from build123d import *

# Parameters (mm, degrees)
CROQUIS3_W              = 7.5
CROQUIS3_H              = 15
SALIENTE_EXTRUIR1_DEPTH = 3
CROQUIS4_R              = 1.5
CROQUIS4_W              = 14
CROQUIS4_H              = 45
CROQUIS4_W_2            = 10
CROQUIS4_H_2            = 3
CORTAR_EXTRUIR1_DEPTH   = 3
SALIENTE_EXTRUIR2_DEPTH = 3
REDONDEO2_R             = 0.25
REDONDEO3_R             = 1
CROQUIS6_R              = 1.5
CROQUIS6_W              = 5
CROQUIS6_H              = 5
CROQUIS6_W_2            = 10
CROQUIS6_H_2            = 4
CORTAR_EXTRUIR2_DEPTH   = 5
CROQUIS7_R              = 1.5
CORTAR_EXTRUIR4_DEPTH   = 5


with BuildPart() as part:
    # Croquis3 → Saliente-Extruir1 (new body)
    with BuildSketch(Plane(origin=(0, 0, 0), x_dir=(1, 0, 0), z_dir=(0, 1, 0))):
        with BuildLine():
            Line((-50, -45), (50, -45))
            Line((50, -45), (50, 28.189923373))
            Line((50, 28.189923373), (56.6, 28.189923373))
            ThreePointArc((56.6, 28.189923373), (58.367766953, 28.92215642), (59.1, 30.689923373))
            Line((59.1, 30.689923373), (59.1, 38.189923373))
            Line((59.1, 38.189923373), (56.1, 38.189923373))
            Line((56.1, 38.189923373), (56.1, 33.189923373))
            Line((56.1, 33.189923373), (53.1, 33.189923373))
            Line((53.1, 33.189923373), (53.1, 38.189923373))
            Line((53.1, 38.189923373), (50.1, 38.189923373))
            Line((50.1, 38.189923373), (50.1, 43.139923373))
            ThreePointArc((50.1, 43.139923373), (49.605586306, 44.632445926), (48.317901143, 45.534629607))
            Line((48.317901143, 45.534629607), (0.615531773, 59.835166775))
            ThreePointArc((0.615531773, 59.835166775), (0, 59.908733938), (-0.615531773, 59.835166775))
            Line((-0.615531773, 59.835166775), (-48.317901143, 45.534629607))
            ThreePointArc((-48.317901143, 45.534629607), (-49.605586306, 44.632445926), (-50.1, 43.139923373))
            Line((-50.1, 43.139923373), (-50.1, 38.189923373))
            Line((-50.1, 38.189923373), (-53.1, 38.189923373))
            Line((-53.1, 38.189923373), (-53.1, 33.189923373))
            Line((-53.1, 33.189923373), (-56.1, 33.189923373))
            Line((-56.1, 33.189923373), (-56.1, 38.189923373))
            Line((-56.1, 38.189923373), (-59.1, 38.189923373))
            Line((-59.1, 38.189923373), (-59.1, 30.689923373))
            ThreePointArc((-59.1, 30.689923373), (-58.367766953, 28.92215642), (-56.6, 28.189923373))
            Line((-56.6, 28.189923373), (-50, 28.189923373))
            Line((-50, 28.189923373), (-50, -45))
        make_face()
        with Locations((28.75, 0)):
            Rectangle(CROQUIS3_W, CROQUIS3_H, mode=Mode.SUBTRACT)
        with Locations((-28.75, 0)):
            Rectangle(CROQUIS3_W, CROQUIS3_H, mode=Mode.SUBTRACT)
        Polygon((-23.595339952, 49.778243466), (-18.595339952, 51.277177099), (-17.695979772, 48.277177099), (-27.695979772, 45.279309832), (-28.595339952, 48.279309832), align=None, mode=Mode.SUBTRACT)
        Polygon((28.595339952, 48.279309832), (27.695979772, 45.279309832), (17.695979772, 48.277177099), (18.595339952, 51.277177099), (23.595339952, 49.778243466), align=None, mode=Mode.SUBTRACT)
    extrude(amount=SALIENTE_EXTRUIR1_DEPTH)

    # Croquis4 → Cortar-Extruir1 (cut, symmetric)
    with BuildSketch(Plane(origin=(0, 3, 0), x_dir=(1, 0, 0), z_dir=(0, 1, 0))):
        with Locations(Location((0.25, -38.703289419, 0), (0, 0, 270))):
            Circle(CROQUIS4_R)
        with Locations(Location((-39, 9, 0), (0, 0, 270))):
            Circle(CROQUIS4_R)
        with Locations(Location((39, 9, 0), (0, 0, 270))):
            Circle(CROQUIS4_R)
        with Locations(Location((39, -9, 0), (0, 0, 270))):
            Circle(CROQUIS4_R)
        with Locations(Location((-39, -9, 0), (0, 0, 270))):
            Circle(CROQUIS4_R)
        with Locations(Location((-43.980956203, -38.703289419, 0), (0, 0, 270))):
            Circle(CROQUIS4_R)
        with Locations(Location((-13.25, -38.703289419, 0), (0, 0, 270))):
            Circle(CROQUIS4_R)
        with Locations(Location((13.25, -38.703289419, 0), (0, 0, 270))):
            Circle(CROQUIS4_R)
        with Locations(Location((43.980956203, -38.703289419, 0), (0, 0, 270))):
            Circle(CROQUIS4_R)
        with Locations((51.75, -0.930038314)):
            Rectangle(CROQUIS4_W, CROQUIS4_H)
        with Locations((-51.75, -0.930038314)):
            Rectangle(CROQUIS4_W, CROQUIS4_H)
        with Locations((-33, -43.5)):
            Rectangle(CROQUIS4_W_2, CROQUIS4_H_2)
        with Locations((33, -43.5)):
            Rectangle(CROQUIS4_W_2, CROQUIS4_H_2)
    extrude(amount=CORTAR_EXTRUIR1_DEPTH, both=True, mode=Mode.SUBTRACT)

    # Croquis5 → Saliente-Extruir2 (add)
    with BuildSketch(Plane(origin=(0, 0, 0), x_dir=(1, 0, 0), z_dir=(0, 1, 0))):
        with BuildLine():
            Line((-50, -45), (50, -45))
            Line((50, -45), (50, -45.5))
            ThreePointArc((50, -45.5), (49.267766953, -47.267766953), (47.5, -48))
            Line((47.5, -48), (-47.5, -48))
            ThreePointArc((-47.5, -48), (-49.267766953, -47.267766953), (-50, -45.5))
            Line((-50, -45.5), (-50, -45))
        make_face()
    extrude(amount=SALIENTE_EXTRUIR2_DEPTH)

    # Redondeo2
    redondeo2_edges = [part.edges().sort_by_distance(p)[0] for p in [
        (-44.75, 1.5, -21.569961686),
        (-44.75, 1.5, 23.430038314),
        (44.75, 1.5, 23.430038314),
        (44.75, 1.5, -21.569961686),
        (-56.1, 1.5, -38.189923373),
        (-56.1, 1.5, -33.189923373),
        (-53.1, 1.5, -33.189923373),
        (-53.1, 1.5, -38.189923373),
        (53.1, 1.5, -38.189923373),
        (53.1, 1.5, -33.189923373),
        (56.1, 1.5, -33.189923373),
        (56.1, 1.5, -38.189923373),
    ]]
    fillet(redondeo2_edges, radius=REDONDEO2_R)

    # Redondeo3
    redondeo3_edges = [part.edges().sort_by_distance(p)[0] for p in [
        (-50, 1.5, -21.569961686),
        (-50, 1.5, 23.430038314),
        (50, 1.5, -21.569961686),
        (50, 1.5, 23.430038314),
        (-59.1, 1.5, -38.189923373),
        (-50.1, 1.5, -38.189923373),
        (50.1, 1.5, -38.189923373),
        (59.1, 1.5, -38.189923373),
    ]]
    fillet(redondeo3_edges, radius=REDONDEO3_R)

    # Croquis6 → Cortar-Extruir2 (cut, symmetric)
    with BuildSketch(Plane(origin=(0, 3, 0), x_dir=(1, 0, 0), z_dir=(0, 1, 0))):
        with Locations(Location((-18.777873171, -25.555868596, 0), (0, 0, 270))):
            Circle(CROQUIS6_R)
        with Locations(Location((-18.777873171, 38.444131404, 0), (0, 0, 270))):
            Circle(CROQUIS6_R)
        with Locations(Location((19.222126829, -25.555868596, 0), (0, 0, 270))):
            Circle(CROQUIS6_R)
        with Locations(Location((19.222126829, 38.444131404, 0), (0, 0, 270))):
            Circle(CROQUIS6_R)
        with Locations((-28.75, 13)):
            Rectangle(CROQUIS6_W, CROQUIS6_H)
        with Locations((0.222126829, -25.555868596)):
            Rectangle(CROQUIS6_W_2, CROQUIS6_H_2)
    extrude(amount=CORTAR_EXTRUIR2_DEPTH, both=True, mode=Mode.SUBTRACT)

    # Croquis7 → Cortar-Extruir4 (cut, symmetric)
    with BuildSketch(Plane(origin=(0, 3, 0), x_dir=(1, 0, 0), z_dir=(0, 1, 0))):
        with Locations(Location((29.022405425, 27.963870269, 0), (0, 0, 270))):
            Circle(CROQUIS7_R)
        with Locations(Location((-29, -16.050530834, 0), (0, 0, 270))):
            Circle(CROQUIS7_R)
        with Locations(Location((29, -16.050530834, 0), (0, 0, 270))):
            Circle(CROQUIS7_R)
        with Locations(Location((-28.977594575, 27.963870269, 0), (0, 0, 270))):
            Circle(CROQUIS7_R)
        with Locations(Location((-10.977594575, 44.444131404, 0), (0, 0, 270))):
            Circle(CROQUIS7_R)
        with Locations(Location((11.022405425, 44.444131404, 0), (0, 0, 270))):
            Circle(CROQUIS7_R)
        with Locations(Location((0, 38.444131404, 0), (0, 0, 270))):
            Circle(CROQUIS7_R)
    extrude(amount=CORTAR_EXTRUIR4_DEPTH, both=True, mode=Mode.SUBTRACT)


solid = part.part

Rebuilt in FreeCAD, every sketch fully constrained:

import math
import FreeCAD as App
import Part
import Sketcher

V = App.Vector
Q = App.Units.Quantity


def edges_at(feature, points):
    """Names of the edges that pass closest to the given points."""
    edges = feature.Shape.Edges
    near = lambda p: min(range(len(edges)), key=lambda i: edges[i].distToShape(Part.Vertex(*p))[0])
    return sorted({f"Edge{near(p) + 1}" for p in points})


def add_polygon(sketch, points):
    """Adds a closed chain of lines whose ends are joined by coincident constraints."""
    first, n = sketch.GeometryCount, len(points)
    for a, b in zip(points, points[1:] + points[:1]):
        sketch.addGeometry(Part.LineSegment(App.Vector(*a, 0), App.Vector(*b, 0)), False)
    for i in range(n):
        sketch.addConstraint(Sketcher.Constraint("Coincident", first + i, 2, first + (i + 1) % n, 1))

doc = App.newDocument("Part")
body = doc.addObject("PartDesign::Body", "Body")

# Sketch on XZ plane
sketch1 = doc.addObject("Sketcher::SketchObject", "Sketch")
body.addObject(sketch1)
sketch1.AttachmentSupport = (doc.XZ_Plane, [""])
sketch1.MapMode = "FlatFace"
sketch1.addGeometry(Part.LineSegment(V(-50, 45, 0), V(50, 45, 0)), False)  # 0
sketch1.addGeometry(Part.LineSegment(V(50, 45, 0), V(50, -28.189923, 0)), False)  # 1
sketch1.addGeometry(Part.LineSegment(V(50, -28.189923, 0), V(56.6, -28.189923, 0)), False)  # 2
sketch1.addGeometry(Part.ArcOfCircle(Part.Circle(V(56.6, -30.689923, 0), V(0, 0, 1), 2.5), math.radians(0), math.radians(90)), False)  # 3
sketch1.addGeometry(Part.LineSegment(V(59.1, -30.689923, 0), V(59.1, -38.189923, 0)), False)  # 4
sketch1.addGeometry(Part.LineSegment(V(59.1, -38.189923, 0), V(56.1, -38.189923, 0)), False)  # 5
sketch1.addGeometry(Part.LineSegment(V(56.1, -38.189923, 0), V(56.1, -33.189923, 0)), False)  # 6
sketch1.addGeometry(Part.LineSegment(V(56.1, -33.189923, 0), V(53.1, -33.189923, 0)), False)  # 7
sketch1.addGeometry(Part.LineSegment(V(53.1, -33.189923, 0), V(53.1, -38.189923, 0)), False)  # 8
sketch1.addGeometry(Part.LineSegment(V(53.1, -38.189923, 0), V(50.1, -38.189923, 0)), False)  # 9
sketch1.addGeometry(Part.LineSegment(V(50.1, -38.189923, 0), V(50.1, -43.139923, 0)), False)  # 10
sketch1.addGeometry(Part.ArcOfCircle(Part.Circle(V(47.6, -43.139923, 0), V(0, 0, 1), 2.5), math.radians(-73.311967), math.radians(0)), False)  # 11
sketch1.addGeometry(Part.LineSegment(V(48.317901, -45.53463, 0), V(0.615532, -59.835167, 0)), False)  # 12
sketch1.addGeometry(Part.ArcOfCircle(Part.Circle(V(0, -57.296893, 0), V(0, 0, 1), 2.611841), math.radians(-103.631101), math.radians(-76.368899)), False)  # 13
sketch1.addGeometry(Part.LineSegment(V(-0.615532, -59.835167, 0), V(-48.317901, -45.53463, 0)), False)  # 14
sketch1.addGeometry(Part.ArcOfCircle(Part.Circle(V(-47.6, -43.139923, 0), V(0, 0, 1), 2.5), math.radians(180), math.radians(253.311967)), False)  # 15
sketch1.addGeometry(Part.LineSegment(V(-50.1, -43.139923, 0), V(-50.1, -38.189923, 0)), False)  # 16
sketch1.addGeometry(Part.LineSegment(V(-50.1, -38.189923, 0), V(-53.1, -38.189923, 0)), False)  # 17
sketch1.addGeometry(Part.LineSegment(V(-53.1, -38.189923, 0), V(-53.1, -33.189923, 0)), False)  # 18
sketch1.addGeometry(Part.LineSegment(V(-53.1, -33.189923, 0), V(-56.1, -33.189923, 0)), False)  # 19
sketch1.addGeometry(Part.LineSegment(V(-56.1, -33.189923, 0), V(-56.1, -38.189923, 0)), False)  # 20
sketch1.addGeometry(Part.LineSegment(V(-56.1, -38.189923, 0), V(-59.1, -38.189923, 0)), False)  # 21
sketch1.addGeometry(Part.LineSegment(V(-59.1, -38.189923, 0), V(-59.1, -30.689923, 0)), False)  # 22
sketch1.addGeometry(Part.ArcOfCircle(Part.Circle(V(-56.6, -30.689923, 0), V(0, 0, 1), 2.5), math.radians(90), math.radians(180)), False)  # 23
sketch1.addGeometry(Part.LineSegment(V(-56.6, -28.189923, 0), V(-50, -28.189923, 0)), False)  # 24
sketch1.addGeometry(Part.LineSegment(V(-50, -28.189923, 0), V(-50, 45, 0)), False)  # 25
add_polygon(sketch1, [(-25, 7.5), (-32.5, 7.5), (-32.5, -7.5), (-25, -7.5)])  # lines 26-29
add_polygon(sketch1, [(32.5, 7.5), (25, 7.5), (25, -7.5), (32.5, -7.5)])  # lines 30-33
add_polygon(sketch1, [(-28.59534, -48.27931), (-23.59534, -49.778243), (-18.59534, -51.277177), (-17.69598, -48.277177), (-27.69598, -45.27931)])  # lines 34-38
add_polygon(sketch1, [(23.59534, -49.778243), (28.59534, -48.27931), (27.69598, -45.27931), (17.69598, -48.277177), (18.59534, -51.277177)])  # lines 39-43
sketch1.addConstraint([
    Sketcher.Constraint("Coincident", 0, 2, 1, 1),
    Sketcher.Constraint("Coincident", 1, 2, 2, 1),
    Sketcher.Constraint("Tangent", 2, 2, 3, 2),
    Sketcher.Constraint("Tangent", 3, 1, 4, 1),
    Sketcher.Constraint("Coincident", 4, 2, 5, 1),
    Sketcher.Constraint("Coincident", 5, 2, 6, 1),
    Sketcher.Constraint("Coincident", 6, 2, 7, 1),
    Sketcher.Constraint("Coincident", 7, 2, 8, 1),
    Sketcher.Constraint("Coincident", 8, 2, 9, 1),
    Sketcher.Constraint("Coincident", 9, 2, 10, 1),
    Sketcher.Constraint("Tangent", 10, 2, 11, 2),
    Sketcher.Constraint("Tangent", 11, 1, 12, 1),
    Sketcher.Constraint("Coincident", 12, 2, 13, 2),
    Sketcher.Constraint("Coincident", 13, 1, 14, 1),
    Sketcher.Constraint("Tangent", 14, 2, 15, 2),
    Sketcher.Constraint("Tangent", 15, 1, 16, 1),
    Sketcher.Constraint("Coincident", 16, 2, 17, 1),
    Sketcher.Constraint("Coincident", 17, 2, 18, 1),
    Sketcher.Constraint("Coincident", 18, 2, 19, 1),
    Sketcher.Constraint("Coincident", 19, 2, 20, 1),
    Sketcher.Constraint("Coincident", 20, 2, 21, 1),
    Sketcher.Constraint("Coincident", 21, 2, 22, 1),
    Sketcher.Constraint("Tangent", 22, 2, 23, 2),
    Sketcher.Constraint("Tangent", 23, 1, 24, 1),
    Sketcher.Constraint("Coincident", 24, 2, 25, 1),
    Sketcher.Constraint("Coincident", 25, 2, 0, 1),
    Sketcher.Constraint("Horizontal", 0),
    Sketcher.Constraint("Vertical", 1),
    Sketcher.Constraint("Horizontal", 2),
    Sketcher.Constraint("Vertical", 4),
    Sketcher.Constraint("Horizontal", 5),
    Sketcher.Constraint("Vertical", 6),
    Sketcher.Constraint("Horizontal", 7),
    Sketcher.Constraint("Vertical", 8),
    Sketcher.Constraint("Horizontal", 9),
    Sketcher.Constraint("Vertical", 10),
    Sketcher.Constraint("Vertical", 16),
    Sketcher.Constraint("Horizontal", 17),
    Sketcher.Constraint("Vertical", 18),
    Sketcher.Constraint("Horizontal", 19),
    Sketcher.Constraint("Vertical", 20),
    Sketcher.Constraint("Horizontal", 21),
    Sketcher.Constraint("Vertical", 22),
    Sketcher.Constraint("Horizontal", 24),
    Sketcher.Constraint("Vertical", 25),
    Sketcher.Constraint("Horizontal", 26),
    Sketcher.Constraint("Vertical", 27),
    Sketcher.Constraint("Horizontal", 28),
    Sketcher.Constraint("Vertical", 29),
    Sketcher.Constraint("Horizontal", 30),
    Sketcher.Constraint("Vertical", 31),
    Sketcher.Constraint("Horizontal", 32),
    Sketcher.Constraint("Vertical", 33),
    Sketcher.Constraint("Equal", 3, 11),
    Sketcher.Constraint("Equal", 11, 15),
    Sketcher.Constraint("Equal", 15, 23),
    Sketcher.Constraint("Symmetric", 28, 2, 30, 2, -1, 1),
    Sketcher.Constraint("Symmetric", 26, 2, 32, 2, -1, 1),
    Sketcher.Constraint("Symmetric", 11, 3, 15, 3, -2),
    Sketcher.Constraint("Symmetric", 3, 3, 23, 3, -2),
    Sketcher.Constraint("Symmetric", 12, 2, 13, 1, -2),
    Sketcher.Constraint("Symmetric", 8, 2, 17, 2, -2),
    Sketcher.Constraint("Symmetric", 6, 2, 19, 2, -2),
    Sketcher.Constraint("Symmetric", 38, 2, 39, 2, -2),
    Sketcher.Constraint("Symmetric", 37, 2, 40, 2, -2),
    Sketcher.Constraint("Symmetric", 36, 2, 41, 2, -2),
    Sketcher.Constraint("Symmetric", 35, 2, 42, 2, -2),
    Sketcher.Constraint("Symmetric", 34, 2, 43, 2, -2),
    Sketcher.Constraint("Parallel", 14, 34),
    Sketcher.Constraint("Parallel", 34, 35),
    Sketcher.Constraint("Perpendicular", 35, 36),
    Sketcher.Constraint("Perpendicular", 36, 37),
    Sketcher.Constraint("Perpendicular", 37, 38),
    Sketcher.Constraint("Horizontal", 5, 2, 8, 2),
    Sketcher.Constraint("Horizontal", 17, 2, 20, 2),
    Sketcher.Constraint("Horizontal", 29, 2, 30, 2),
    Sketcher.Constraint("Equal", 5, 7),
    Sketcher.Constraint("Equal", 7, 9),
    Sketcher.Constraint("Equal", 2, 24),
    Sketcher.Constraint("Equal", 32, 4),
    Sketcher.Constraint("Equal", 34, 35),
    Sketcher.Constraint("Radius", 3, Q("2.5 mm")),
    Sketcher.Constraint("DistanceX", 0, 1, 0, 2, Q("100 mm")),
    Sketcher.Constraint("DistanceX", 5, 2, 5, 1, Q("3 mm")),
    Sketcher.Constraint("DistanceY", 6, 1, 6, 2, Q("5 mm")),
    Sketcher.Constraint("DistanceY", 27, 2, 27, 1, Q("15 mm")),
    Sketcher.Constraint("DistanceX", 2, 1, 2, 2, Q("6.6 mm")),
    Sketcher.Constraint("DistanceX", 26, 2, 26, 1, Q("7.5 mm")),
    Sketcher.Constraint("DistanceY", -1, 1, 0, 2, Q("45 mm")),
    Sketcher.Constraint("DistanceX", 28, 2, -1, 1, Q("25 mm")),
    Sketcher.Constraint("DistanceX", 34, 2, 35, 2, Q("5 mm")),
    Sketcher.Constraint("DistanceY", 35, 2, 36, 2, Q("3 mm")),
    Sketcher.Constraint("DistanceY", 10, 2, 10, 1, Q("4.95 mm")),
    Sketcher.Constraint("Radius", 13, Q("2.611841 mm")),
    Sketcher.Constraint("DistanceX", -1, 1, 11, 1, Q("48.317901 mm")),
    Sketcher.Constraint("DistanceY", 1, 2, 1, 1, Q("73.189923 mm")),
    Sketcher.Constraint("DistanceX", -1, 1, 12, 2, Q("0.615532 mm")),
    Sketcher.Constraint("DistanceX", 34, 2, -1, 1, Q("23.59534 mm")),
    Sketcher.Constraint("DistanceY", 37, 2, -1, 1, Q("45.27931 mm")),
])
pad1 = doc.addObject("PartDesign::Pad", "Pad")
body.addObject(pad1)
pad1.Profile = sketch1
pad1.Length = 3
pad1.Reversed = True

# Sketch on XZ plane
sketch2 = doc.addObject("Sketcher::SketchObject", "Sketch001")
body.addObject(sketch2)
sketch2.AttachmentSupport = (doc.XZ_Plane, [""])
sketch2.MapMode = "FlatFace"
sketch2.AttachmentOffset = App.Placement(V(0, 0, -3), App.Rotation())
sketch2.addGeometry(Part.Circle(V(0.25, 38.703289, 0), V(0, 0, 1), 1.5), False)  # 0
sketch2.addGeometry(Part.Circle(V(-39, -9, 0), V(0, 0, 1), 1.5), False)  # 1
sketch2.addGeometry(Part.Circle(V(39, -9, 0), V(0, 0, 1), 1.5), False)  # 2
sketch2.addGeometry(Part.Circle(V(39, 9, 0), V(0, 0, 1), 1.5), False)  # 3
sketch2.addGeometry(Part.Circle(V(-39, 9, 0), V(0, 0, 1), 1.5), False)  # 4
sketch2.addGeometry(Part.Circle(V(-43.980956, 38.703289, 0), V(0, 0, 1), 1.5), False)  # 5
sketch2.addGeometry(Part.Circle(V(-13.25, 38.703289, 0), V(0, 0, 1), 1.5), False)  # 6
sketch2.addGeometry(Part.Circle(V(13.25, 38.703289, 0), V(0, 0, 1), 1.5), False)  # 7
sketch2.addGeometry(Part.Circle(V(43.980956, 38.703289, 0), V(0, 0, 1), 1.5), False)  # 8
add_polygon(sketch2, [(44.75, -21.569962), (44.75, 23.430038), (58.75, 23.430038), (58.75, -21.569962)])  # lines 9-12
add_polygon(sketch2, [(-58.75, -21.569962), (-58.75, 23.430038), (-44.75, 23.430038), (-44.75, -21.569962)])  # lines 13-16
add_polygon(sketch2, [(-38, 42), (-38, 45), (-28, 45), (-28, 42)])  # lines 17-20
add_polygon(sketch2, [(28, 42), (28, 45), (38, 45), (38, 42)])  # lines 21-24
sketch2.addConstraint([
    Sketcher.Constraint("Vertical", 9),
    Sketcher.Constraint("Horizontal", 10),
    Sketcher.Constraint("Vertical", 11),
    Sketcher.Constraint("Horizontal", 12),
    Sketcher.Constraint("Vertical", 13),
    Sketcher.Constraint("Horizontal", 14),
    Sketcher.Constraint("Vertical", 15),
    Sketcher.Constraint("Horizontal", 16),
    Sketcher.Constraint("Vertical", 17),
    Sketcher.Constraint("Horizontal", 18),
    Sketcher.Constraint("Vertical", 19),
    Sketcher.Constraint("Horizontal", 20),
    Sketcher.Constraint("Vertical", 21),
    Sketcher.Constraint("Horizontal", 22),
    Sketcher.Constraint("Vertical", 23),
    Sketcher.Constraint("Horizontal", 24),
    Sketcher.Constraint("Equal", 0, 1),
    Sketcher.Constraint("Equal", 1, 2),
    Sketcher.Constraint("Equal", 2, 3),
    Sketcher.Constraint("Equal", 3, 4),
    Sketcher.Constraint("Equal", 4, 5),
    Sketcher.Constraint("Equal", 5, 6),
    Sketcher.Constraint("Equal", 6, 7),
    Sketcher.Constraint("Equal", 7, 8),
    Sketcher.Constraint("Symmetric", 1, 3, 3, 3, -1, 1),
    Sketcher.Constraint("Symmetric", 2, 3, 4, 3, -1, 1),
    Sketcher.Constraint("Symmetric", 1, 3, 2, 3, -2),
    Sketcher.Constraint("Symmetric", 6, 3, 7, 3, -2),
    Sketcher.Constraint("Symmetric", 5, 3, 8, 3, -2),
    Sketcher.Constraint("Symmetric", 10, 2, 13, 2, -2),
    Sketcher.Constraint("Symmetric", 12, 2, 15, 2, -2),
    Sketcher.Constraint("Symmetric", 18, 2, 21, 2, -2),
    Sketcher.Constraint("Symmetric", 20, 2, 23, 2, -2),
    Sketcher.Constraint("Horizontal", 0, 3, 5, 3),
    Sketcher.Constraint("Horizontal", 5, 3, 6, 3),
    Sketcher.Constraint("Diameter", 0, Q("3 mm")),
    Sketcher.Constraint("DistanceX", 10, 1, 10, 2, Q("14 mm")),
    Sketcher.Constraint("DistanceX", 18, 1, 18, 2, Q("10 mm")),
    Sketcher.Constraint("DistanceY", 9, 1, 9, 2, Q("45 mm")),
    Sketcher.Constraint("DistanceY", 17, 1, 17, 2, Q("3 mm")),
    Sketcher.Constraint("DistanceX", 1, 3, -1, 1, Q("39 mm")),
    Sketcher.Constraint("DistanceY", 1, 3, -1, 1, Q("9 mm")),
    Sketcher.Constraint("DistanceX", 17, 2, -1, 1, Q("38 mm")),
    Sketcher.Constraint("DistanceY", -1, 1, 17, 2, Q("45 mm")),
    Sketcher.Constraint("DistanceX", 0, 3, 7, 3, Q("13 mm")),
    Sketcher.Constraint("DistanceX", 13, 2, 0, 3, Q("59 mm")),
    Sketcher.Constraint("DistanceX", 6, 3, 0, 3, Q("13.5 mm")),
    Sketcher.Constraint("DistanceY", -1, 1, 0, 3, Q("38.703289 mm")),
    Sketcher.Constraint("DistanceY", -1, 1, 9, 2, Q("23.430038 mm")),
    Sketcher.Constraint("DistanceX", 5, 3, -1, 1, Q("43.980956 mm")),
])
pocket1 = doc.addObject("PartDesign::Pocket", "Pocket")
body.addObject(pocket1)
pocket1.Profile = sketch2
pocket1.Length = 6
pocket1.Midplane = True

# Sketch on XZ plane
sketch3 = doc.addObject("Sketcher::SketchObject", "Sketch002")
body.addObject(sketch3)
sketch3.AttachmentSupport = (doc.XZ_Plane, [""])
sketch3.MapMode = "FlatFace"
sketch3.addGeometry([
    Part.LineSegment(V(50, 45, 0), V(-50, 45, 0)),  # 0
    Part.LineSegment(V(-50, 45, 0), V(-50, 45.5, 0)),  # 1
    Part.ArcOfCircle(Part.Circle(V(-47.5, 45.5, 0), V(0, 0, 1), 2.5), math.radians(90), math.radians(180)),  # 2
    Part.LineSegment(V(-47.5, 48, 0), V(47.5, 48, 0)),  # 3
    Part.ArcOfCircle(Part.Circle(V(47.5, 45.5, 0), V(0, 0, 1), 2.5), math.radians(0), math.radians(90)),  # 4
    Part.LineSegment(V(50, 45.5, 0), V(50, 45, 0)),  # 5
], False)
sketch3.addConstraint([
    Sketcher.Constraint("Coincident", 0, 2, 1, 1),
    Sketcher.Constraint("Tangent", 1, 2, 2, 2),
    Sketcher.Constraint("Tangent", 2, 1, 3, 1),
    Sketcher.Constraint("Tangent", 3, 2, 4, 2),
    Sketcher.Constraint("Tangent", 4, 1, 5, 1),
    Sketcher.Constraint("Coincident", 5, 2, 0, 1),
    Sketcher.Constraint("Horizontal", 0),
    Sketcher.Constraint("Vertical", 1),
    Sketcher.Constraint("Horizontal", 3),
    Sketcher.Constraint("Vertical", 5),
    Sketcher.Constraint("Equal", 2, 4),
    Sketcher.Constraint("Radius", 2, Q("2.5 mm")),
    Sketcher.Constraint("DistanceX", 0, 2, 0, 1, Q("100 mm")),
    Sketcher.Constraint("DistanceY", 1, 1, 1, 2, Q("0.5 mm")),
    Sketcher.Constraint("DistanceX", 0, 2, -1, 1, Q("50 mm")),
    Sketcher.Constraint("DistanceY", -1, 1, 0, 2, Q("45 mm")),
])
pad2 = doc.addObject("PartDesign::Pad", "Pad001")
body.addObject(pad2)
pad2.Profile = sketch3
pad2.Length = 3
pad2.Reversed = True
doc.recompute()

fillet = doc.addObject("PartDesign::Fillet", "Fillet")
body.addObject(fillet)
fillet.Base = (pad2, edges_at(pad2, [
    (-44.75, 1.5, -21.57),
    (-44.75, 1.5, 23.43),
    (44.75, 1.5, 23.43),
    (44.75, 1.5, -21.57),
    (-56.1, 1.5, -38.19),
    (-56.1, 1.5, -33.19),
    (-53.1, 1.5, -33.19),
    (-53.1, 1.5, -38.19),
    (53.1, 1.5, -38.19),
    (53.1, 1.5, -33.19),
    (56.1, 1.5, -33.19),
    (56.1, 1.5, -38.19),
]))
fillet.Radius = 0.25
doc.recompute()

fillet2 = doc.addObject("PartDesign::Fillet", "Fillet001")
body.addObject(fillet2)
fillet2.Base = (fillet, edges_at(fillet, [
    (-50, 1.5, -21.57),
    (-50, 1.5, 23.43),
    (50, 1.5, -21.57),
    (50, 1.5, 23.43),
    (-59.1, 1.5, -38.19),
    (-50.1, 1.5, -38.19),
    (50.1, 1.5, -38.19),
    (59.1, 1.5, -38.19),
]))
fillet2.Radius = 1

# Sketch on XZ plane
sketch4 = doc.addObject("Sketcher::SketchObject", "Sketch003")
body.addObject(sketch4)
sketch4.AttachmentSupport = (doc.XZ_Plane, [""])
sketch4.MapMode = "FlatFace"
sketch4.AttachmentOffset = App.Placement(V(0, 0, -3), App.Rotation())
sketch4.addGeometry(Part.Circle(V(-18.777873, 25.555869, 0), V(0, 0, 1), 1.5), False)  # 0
sketch4.addGeometry(Part.Circle(V(-18.777873, -38.444131, 0), V(0, 0, 1), 1.5), False)  # 1
sketch4.addGeometry(Part.Circle(V(19.222127, 25.555869, 0), V(0, 0, 1), 1.5), False)  # 2
sketch4.addGeometry(Part.Circle(V(19.222127, -38.444131, 0), V(0, 0, 1), 1.5), False)  # 3
add_polygon(sketch4, [(-31.25, -15.5), (-31.25, -10.5), (-26.25, -10.5), (-26.25, -15.5)])  # lines 4-7
add_polygon(sketch4, [(-4.777873, 23.555869), (-4.777873, 27.555869), (5.222127, 27.555869), (5.222127, 23.555869)])  # lines 8-11
sketch4.addConstraint([
    Sketcher.Constraint("Vertical", 4),
    Sketcher.Constraint("Horizontal", 5),
    Sketcher.Constraint("Vertical", 6),
    Sketcher.Constraint("Horizontal", 7),
    Sketcher.Constraint("Vertical", 8),
    Sketcher.Constraint("Horizontal", 9),
    Sketcher.Constraint("Vertical", 10),
    Sketcher.Constraint("Horizontal", 11),
    Sketcher.Constraint("Equal", 0, 1),
    Sketcher.Constraint("Equal", 1, 2),
    Sketcher.Constraint("Equal", 2, 3),
    Sketcher.Constraint("Horizontal", 0, 3, 2, 3),
    Sketcher.Constraint("Horizontal", 1, 3, 3, 3),
    Sketcher.Constraint("Vertical", 0, 3, 1, 3),
    Sketcher.Constraint("Vertical", 2, 3, 3, 3),
    Sketcher.Constraint("Equal", 7, 4),
    Sketcher.Constraint("Diameter", 0, Q("3 mm")),
    Sketcher.Constraint("DistanceX", 5, 1, 5, 2, Q("5 mm")),
    Sketcher.Constraint("DistanceX", 9, 1, 9, 2, Q("10 mm")),
    Sketcher.Constraint("DistanceY", 8, 1, 8, 2, Q("4 mm")),
    Sketcher.Constraint("DistanceY", 1, 3, 0, 3, Q("64 mm")),
    Sketcher.Constraint("DistanceX", 0, 3, 2, 3, Q("38 mm")),
    Sketcher.Constraint("DistanceX", 0, 3, 8, 2, Q("14 mm")),
    Sketcher.Constraint("DistanceY", 0, 3, 8, 2, Q("2 mm")),
    Sketcher.Constraint("DistanceY", 4, 2, -1, 1, Q("10.5 mm")),
    Sketcher.Constraint("DistanceX", 4, 2, -1, 1, Q("31.25 mm")),
    Sketcher.Constraint("DistanceY", -1, 1, 0, 3, Q("25.555869 mm")),
    Sketcher.Constraint("DistanceX", 0, 3, -1, 1, Q("18.777873 mm")),
])
pocket2 = doc.addObject("PartDesign::Pocket", "Pocket001")
body.addObject(pocket2)
pocket2.Profile = sketch4
pocket2.Length = 10
pocket2.Midplane = True

# Sketch on XZ plane
sketch5 = doc.addObject("Sketcher::SketchObject", "Sketch004")
body.addObject(sketch5)
sketch5.AttachmentSupport = (doc.XZ_Plane, [""])
sketch5.MapMode = "FlatFace"
sketch5.AttachmentOffset = App.Placement(V(0, 0, -3), App.Rotation())
sketch5.addGeometry([
    Part.Circle(V(29.022405, -27.96387, 0), V(0, 0, 1), 1.5),  # 0
    Part.Circle(V(-29, 16.050531, 0), V(0, 0, 1), 1.5),  # 1
    Part.Circle(V(29, 16.050531, 0), V(0, 0, 1), 1.5),  # 2
    Part.Circle(V(-28.977595, -27.96387, 0), V(0, 0, 1), 1.5),  # 3
    Part.Circle(V(-10.977595, -44.444131, 0), V(0, 0, 1), 1.5),  # 4
    Part.Circle(V(11.022405, -44.444131, 0), V(0, 0, 1), 1.5),  # 5
    Part.Circle(V(0, -38.444131, 0), V(0, 0, 1), 1.5),  # 6
], False)
sketch5.addConstraint([
    Sketcher.Constraint("Equal", 0, 1),
    Sketcher.Constraint("Equal", 1, 2),
    Sketcher.Constraint("Equal", 2, 3),
    Sketcher.Constraint("Equal", 3, 4),
    Sketcher.Constraint("Equal", 4, 5),
    Sketcher.Constraint("Equal", 5, 6),
    Sketcher.Constraint("Symmetric", 1, 3, 2, 3, -2),
    Sketcher.Constraint("PointOnObject", 6, 3, -2),
    Sketcher.Constraint("Horizontal", 0, 3, 3, 3),
    Sketcher.Constraint("Horizontal", 4, 3, 5, 3),
    Sketcher.Constraint("Diameter", 0, Q("3 mm")),
    Sketcher.Constraint("DistanceX", 1, 3, -1, 1, Q("29 mm")),
    Sketcher.Constraint("DistanceX", 3, 3, 0, 3, Q("58 mm")),
    Sketcher.Constraint("DistanceX", 3, 3, 4, 3, Q("18 mm")),
    Sketcher.Constraint("DistanceX", 4, 3, 5, 3, Q("22 mm")),
    Sketcher.Constraint("DistanceY", 4, 3, 6, 3, Q("6 mm")),
    Sketcher.Constraint("DistanceY", 0, 3, 1, 3, Q("44.014401 mm")),
    Sketcher.Constraint("DistanceY", 0, 3, -1, 1, Q("27.96387 mm")),
    Sketcher.Constraint("DistanceY", 4, 3, -1, 1, Q("44.444131 mm")),
    Sketcher.Constraint("DistanceX", -1, 1, 0, 3, Q("29.022405 mm")),
])
pocket3 = doc.addObject("PartDesign::Pocket", "Pocket002")
body.addObject(pocket3)
pocket3.Profile = sketch5
pocket3.Length = 10
pocket3.Midplane = True

doc.recompute()
